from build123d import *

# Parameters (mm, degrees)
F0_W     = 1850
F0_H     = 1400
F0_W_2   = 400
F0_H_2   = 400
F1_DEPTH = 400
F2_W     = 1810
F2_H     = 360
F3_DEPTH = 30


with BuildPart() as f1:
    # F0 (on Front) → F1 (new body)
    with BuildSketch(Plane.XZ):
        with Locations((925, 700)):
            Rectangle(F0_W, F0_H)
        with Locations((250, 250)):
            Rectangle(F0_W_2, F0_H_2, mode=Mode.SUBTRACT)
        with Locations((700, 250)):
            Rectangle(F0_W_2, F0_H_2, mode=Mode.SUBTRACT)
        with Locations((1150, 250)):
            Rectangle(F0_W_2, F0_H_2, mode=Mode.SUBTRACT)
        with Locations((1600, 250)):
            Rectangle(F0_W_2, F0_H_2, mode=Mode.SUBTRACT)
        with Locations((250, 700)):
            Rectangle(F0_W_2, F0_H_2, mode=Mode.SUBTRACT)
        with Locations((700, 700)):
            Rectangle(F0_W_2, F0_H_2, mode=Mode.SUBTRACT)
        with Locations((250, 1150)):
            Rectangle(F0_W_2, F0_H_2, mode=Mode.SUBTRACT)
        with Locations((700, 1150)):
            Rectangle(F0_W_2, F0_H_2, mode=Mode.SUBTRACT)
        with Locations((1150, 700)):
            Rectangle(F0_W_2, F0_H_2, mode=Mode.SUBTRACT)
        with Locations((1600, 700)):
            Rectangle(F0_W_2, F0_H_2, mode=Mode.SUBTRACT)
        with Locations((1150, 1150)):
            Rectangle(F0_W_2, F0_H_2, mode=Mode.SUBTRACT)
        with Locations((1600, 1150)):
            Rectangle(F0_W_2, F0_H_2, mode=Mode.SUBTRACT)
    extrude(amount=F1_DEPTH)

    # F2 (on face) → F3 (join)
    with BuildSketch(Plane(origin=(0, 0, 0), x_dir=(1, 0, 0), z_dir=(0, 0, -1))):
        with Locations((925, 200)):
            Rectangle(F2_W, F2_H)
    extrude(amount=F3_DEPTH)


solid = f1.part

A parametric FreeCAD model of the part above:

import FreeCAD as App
import Part
import Sketcher

doc = App.newDocument("Part")
params = doc.addObject("Spreadsheet::Sheet", "Params")
for row, (alias, value) in enumerate([
    ("sketch1_width", "1850 mm"),
    ("sketch1_width2", "400 mm"),
    ("sketch1_height", "1400 mm"),
    ("pad1_length", "400 mm"),
    ("sketch2_width", "1810 mm"),
    ("sketch2_height", "360 mm"),
    ("pad2_length", "30 mm"),
], start=1):
    params.set(f"A{row}", alias)
    params.set(f"B{row}", "=" + value)
    params.setAlias(f"B{row}", alias)

body = doc.addObject("PartDesign::Body", "Body")

# Sketch on XZ plane
sketch1 = doc.addObject("Sketcher::SketchObject", "Sketch")
body.addObject(sketch1)
sketch1.AttachmentSupport = (doc.XZ_Plane, [""])
sketch1.MapMode = "FlatFace"
sketch1.addGeometry(Part.LineSegment(App.Vector(0, 1400, 0), App.Vector(0, 0, 0)), False)
sketch1.addGeometry(Part.LineSegment(App.Vector(0, 0, 0), App.Vector(1850, 0, 0)), False)
sketch1.addGeometry(Part.LineSegment(App.Vector(1850, 0, 0), App.Vector(1850, 1400, 0)), False)
sketch1.addGeometry(Part.LineSegment(App.Vector(1850, 1400, 0), App.Vector(0, 1400, 0)), False)
sketch1.addGeometry(Part.LineSegment(App.Vector(450, 50, 0), App.Vector(50, 50, 0)), False)
sketch1.addGeometry(Part.LineSegment(App.Vector(50, 50, 0), App.Vector(50, 450, 0)), False)
sketch1.addGeometry(Part.LineSegment(App.Vector(50, 450, 0), App.Vector(450, 450, 0)), False)
sketch1.addGeometry(Part.LineSegment(App.Vector(450, 450, 0), App.Vector(450, 50, 0)), False)
sketch1.addGeometry(Part.LineSegment(App.Vector(900, 50, 0), App.Vector(500, 50, 0)), False)
sketch1.addGeometry(Part.LineSegment(App.Vector(500, 50, 0), App.Vector(500, 450, 0)), False)
sketch1.addGeometry(Part.LineSegment(App.Vector(500, 450, 0), App.Vector(900, 450, 0)), False)
sketch1.addGeometry(Part.LineSegment(App.Vector(900, 450, 0), App.Vector(900, 50, 0)), False)
sketch1.addGeometry(Part.LineSegment(App.Vector(1350, 50, 0), App.Vector(950, 50, 0)), False)
sketch1.addGeometry(Part.LineSegment(App.Vector(950, 50, 0), App.Vector(950, 450, 0)), False)
sketch1.addGeometry(Part.LineSegment(App.Vector(950, 450, 0), App.Vector(1350, 450, 0)), False)
sketch1.addGeometry(Part.LineSegment(App.Vector(1350, 450, 0), App.Vector(1350, 50, 0)), False)
sketch1.addGeometry(Part.LineSegment(App.Vector(1800, 50, 0), App.Vector(1400, 50, 0)), False)
sketch1.addGeometry(Part.LineSegment(App.Vector(1400, 50, 0), App.Vector(1400, 450, 0)), False)
sketch1.addGeometry(Part.LineSegment(App.Vector(1400, 450, 0), App.Vector(1800, 450, 0)), False)
sketch1.addGeometry(Part.LineSegment(App.Vector(1800, 450, 0), App.Vector(1800, 50, 0)), False)
sketch1.addGeometry(Part.LineSegment(App.Vector(450, 500, 0), App.Vector(50, 500, 0)), False)
sketch1.addGeometry(Part.LineSegment(App.Vector(50, 500, 0), App.Vector(50, 900, 0)), False)
sketch1.addGeometry(Part.LineSegment(App.Vector(50, 900, 0), App.Vector(450, 900, 0)), False)
sketch1.addGeometry(Part.LineSegment(App.Vector(450, 900, 0), App.Vector(450, 500, 0)), False)
sketch1.addGeometry(Part.LineSegment(App.Vector(900, 500, 0), App.Vector(500, 500, 0)), False)
sketch1.addGeometry(Part.LineSegment(App.Vector(500, 500, 0), App.Vector(500, 900, 0)), False)
sketch1.addGeometry(Part.LineSegment(App.Vector(500, 900, 0), App.Vector(900, 900, 0)), False)
sketch1.addGeometry(Part.LineSegment(App.Vector(900, 900, 0), App.Vector(900, 500, 0)), False)
sketch1.addGeometry(Part.LineSegment(App.Vector(450, 950, 0), App.Vector(50, 950, 0)), False)
sketch1.addGeometry(Part.LineSegment(App.Vector(50, 950, 0), App.Vector(50, 1350, 0)), False)
sketch1.addGeometry(Part.LineSegment(App.Vector(50, 1350, 0), App.Vector(450, 1350, 0)), False)
sketch1.addGeometry(Part.LineSegment(App.Vector(450, 1350, 0), App.Vector(450, 950, 0)), False)
sketch1.addGeometry(Part.LineSegment(App.Vector(900, 950, 0), App.Vector(500, 950, 0)), False)
sketch1.addGeometry(Part.LineSegment(App.Vector(500, 950, 0), App.Vector(500, 1350, 0)), False)
sketch1.addGeometry(Part.LineSegment(App.Vector(500, 1350, 0), App.Vector(900, 1350, 0)), False)
sketch1.addGeometry(Part.LineSegment(App.Vector(900, 1350, 0), App.Vector(900, 950, 0)), False)
sketch1.addGeometry(Part.LineSegment(App.Vector(1350, 500, 0), App.Vector(950, 500, 0)), False)
sketch1.addGeometry(Part.LineSegment(App.Vector(950, 500, 0), App.Vector(950, 900, 0)), False)
sketch1.addGeometry(Part.LineSegment(App.Vector(950, 900, 0), App.Vector(1350, 900, 0)), False)
sketch1.addGeometry(Part.LineSegment(App.Vector(1350, 900, 0), App.Vector(1350, 500, 0)), False)
sketch1.addGeometry(Part.LineSegment(App.Vector(1800, 500, 0), App.Vector(1400, 500, 0)), False)
sketch1.addGeometry(Part.LineSegment(App.Vector(1400, 500, 0), App.Vector(1400, 900, 0)), False)
sketch1.addGeometry(Part.LineSegment(App.Vector(1400, 900, 0), App.Vector(1800, 900, 0)), False)
sketch1.addGeometry(Part.LineSegment(App.Vector(1800, 900, 0), App.Vector(1800, 500, 0)), False)
sketch1.addGeometry(Part.LineSegment(App.Vector(1350, 950, 0), App.Vector(950, 950, 0)), False)
sketch1.addGeometry(Part.LineSegment(App.Vector(950, 950, 0), App.Vector(950, 1350, 0)), False)
sketch1.addGeometry(Part.LineSegment(App.Vector(950, 1350, 0), App.Vector(1350, 1350, 0)), False)
sketch1.addGeometry(Part.LineSegment(App.Vector(1350, 1350, 0), App.Vector(1350, 950, 0)), False)
sketch1.addGeometry(Part.LineSegment(App.Vector(1800, 950, 0), App.Vector(1400, 950, 0)), False)
sketch1.addGeometry(Part.LineSegment(App.Vector(1400, 950, 0), App.Vector(1400, 1350, 0)), False)
sketch1.addGeometry(Part.LineSegment(App.Vector(1400, 1350, 0), App.Vector(1800, 1350, 0)), False)
sketch1.addGeometry(Part.LineSegment(App.Vector(1800, 1350, 0), App.Vector(1800, 950, 0)), False)
sketch1.addConstraint(Sketcher.Constraint("Coincident", 0, 2, 1, 1))
sketch1.addConstraint(Sketcher.Constraint("Coincident", 1, 2, 2, 1))
sketch1.addConstraint(Sketcher.Constraint("Coincident", 2, 2, 3, 1))
sketch1.addConstraint(Sketcher.Constraint("Coincident", 3, 2, 0, 1))
sketch1.addConstraint(Sketcher.Constraint("Coincident", 4, 2, 5, 1))
sketch1.addConstraint(Sketcher.Constraint("Coincident", 5, 2, 6, 1))
sketch1.addConstraint(Sketcher.Constraint("Coincident", 6, 2, 7, 1))
sketch1.addConstraint(Sketcher.Constraint("Coincident", 7, 2, 4, 1))
sketch1.addConstraint(Sketcher.Constraint("Coincident", 8, 2, 9, 1))
sketch1.addConstraint(Sketcher.Constraint("Coincident", 9, 2, 10, 1))
sketch1.addConstraint(Sketcher.Constraint("Coincident", 10, 2, 11, 1))
sketch1.addConstraint(Sketcher.Constraint("Coincident", 11, 2, 8, 1))
sketch1.addConstraint(Sketcher.Constraint("Coincident", 12, 2, 13, 1))
sketch1.addConstraint(Sketcher.Constraint("Coincident", 13, 2, 14, 1))
sketch1.addConstraint(Sketcher.Constraint("Coincident", 14, 2, 15, 1))
sketch1.addConstraint(Sketcher.Constraint("Coincident", 15, 2, 12, 1))
sketch1.addConstraint(Sketcher.Constraint("Coincident", 16, 2, 17, 1))
sketch1.addConstraint(Sketcher.Constraint("Coincident", 17, 2, 18, 1))
sketch1.addConstraint(Sketcher.Constraint("Coincident", 18, 2, 19, 1))
sketch1.addConstraint(Sketcher.Constraint("Coincident", 19, 2, 16, 1))
sketch1.addConstraint(Sketcher.Constraint("Coincident", 20, 2, 21, 1))
sketch1.addConstraint(Sketcher.Constraint("Coincident", 21, 2, 22, 1))
sketch1.addConstraint(Sketcher.Constraint("Coincident", 22, 2, 23, 1))
sketch1.addConstraint(Sketcher.Constraint("Coincident", 23, 2, 20, 1))
sketch1.addConstraint(Sketcher.Constraint("Coincident", 24, 2, 25, 1))
sketch1.addConstraint(Sketcher.Constraint("Coincident", 25, 2, 26, 1))
sketch1.addConstraint(Sketcher.Constraint("Coincident", 26, 2, 27, 1))
sketch1.addConstraint(Sketcher.Constraint("Coincident", 27, 2, 24, 1))
sketch1.addConstraint(Sketcher.Constraint("Coincident", 28, 2, 29, 1))
sketch1.addConstraint(Sketcher.Constraint("Coincident", 29, 2, 30, 1))
sketch1.addConstraint(Sketcher.Constraint("Coincident", 30, 2, 31, 1))
sketch1.addConstraint(Sketcher.Constraint("Coincident", 31, 2, 28, 1))
sketch1.addConstraint(Sketcher.Constraint("Coincident", 32, 2, 33, 1))
sketch1.addConstraint(Sketcher.Constraint("Coincident", 33, 2, 34, 1))
sketch1.addConstraint(Sketcher.Constraint("Coincident", 34, 2, 35, 1))
sketch1.addConstraint(Sketcher.Constraint("Coincident", 35, 2, 32, 1))
sketch1.addConstraint(Sketcher.Constraint("Coincident", 36, 2, 37, 1))
sketch1.addConstraint(Sketcher.Constraint("Coincident", 37, 2, 38, 1))
sketch1.addConstraint(Sketcher.Constraint("Coincident", 38, 2, 39, 1))
sketch1.addConstraint(Sketcher.Constraint("Coincident", 39, 2, 36, 1))
sketch1.addConstraint(Sketcher.Constraint("Coincident", 40, 2, 41, 1))
sketch1.addConstraint(Sketcher.Constraint("Coincident", 41, 2, 42, 1))
sketch1.addConstraint(Sketcher.Constraint("Coincident", 42, 2, 43, 1))
sketch1.addConstraint(Sketcher.Constraint("Coincident", 43, 2, 40, 1))
sketch1.addConstraint(Sketcher.Constraint("Coincident", 44, 2, 45, 1))
sketch1.addConstraint(Sketcher.Constraint("Coincident", 45, 2, 46, 1))
sketch1.addConstraint(Sketcher.Constraint("Coincident", 46, 2, 47, 1))
sketch1.addConstraint(Sketcher.Constraint("Coincident", 47, 2, 44, 1))
sketch1.addConstraint(Sketcher.Constraint("Coincident", 48, 2, 49, 1))
sketch1.addConstraint(Sketcher.Constraint("Coincident", 49, 2, 50, 1))
sketch1.addConstraint(Sketcher.Constraint("Coincident", 50, 2, 51, 1))
sketch1.addConstraint(Sketcher.Constraint("Coincident", 51, 2, 48, 1))
sketch1.addConstraint(Sketcher.Constraint("Vertical", 0))
sketch1.addConstraint(Sketcher.Constraint("Horizontal", 1))
sketch1.addConstraint(Sketcher.Constraint("Vertical", 2))
sketch1.addConstraint(Sketcher.Constraint("Horizontal", 3))
sketch1.addConstraint(Sketcher.Constraint("Horizontal", 4))
sketch1.addConstraint(Sketcher.Constraint("Vertical", 5))
sketch1.addConstraint(Sketcher.Constraint("Horizontal", 6))
sketch1.addConstraint(Sketcher.Constraint("Vertical", 7))
sketch1.addConstraint(Sketcher.Constraint("Horizontal", 8))
sketch1.addConstraint(Sketcher.Constraint("Vertical", 9))
sketch1.addConstraint(Sketcher.Constraint("Horizontal", 10))
sketch1.addConstraint(Sketcher.Constraint("Vertical", 11))
sketch1.addConstraint(Sketcher.Constraint("Horizontal", 12))
sketch1.addConstraint(Sketcher.Constraint("Vertical", 13))
sketch1.addConstraint(Sketcher.Constraint("Horizontal", 14))
sketch1.addConstraint(Sketcher.Constraint("Vertical", 15))
sketch1.addConstraint(Sketcher.Constraint("Horizontal", 16))
sketch1.addConstraint(Sketcher.Constraint("Vertical", 17))
sketch1.addConstraint(Sketcher.Constraint("Horizontal", 18))
sketch1.addConstraint(Sketcher.Constraint("Vertical", 19))
sketch1.addConstraint(Sketcher.Constraint("Horizontal", 20))
sketch1.addConstraint(Sketcher.Constraint("Vertical", 21))
sketch1.addConstraint(Sketcher.Constraint("Horizontal", 22))
sketch1.addConstraint(Sketcher.Constraint("Vertical", 23))
sketch1.addConstraint(Sketcher.Constraint("Horizontal", 24))
sketch1.addConstraint(Sketcher.Constraint("Vertical", 25))
sketch1.addConstraint(Sketcher.Constraint("Horizontal", 26))
sketch1.addConstraint(Sketcher.Constraint("Vertical", 27))
sketch1.addConstraint(Sketcher.Constraint("Horizontal", 28))
sketch1.addConstraint(Sketcher.Constraint("Vertical", 29))
sketch1.addConstraint(Sketcher.Constraint("Horizontal", 30))
sketch1.addConstraint(Sketcher.Constraint("Vertical", 31))
sketch1.addConstraint(Sketcher.Constraint("Horizontal", 32))
sketch1.addConstraint(Sketcher.Constraint("Vertical", 33))
sketch1.addConstraint(Sketcher.Constraint("Horizontal", 34))
sketch1.addConstraint(Sketcher.Constraint("Vertical", 35))
sketch1.addConstraint(Sketcher.Constraint("Horizontal", 36))
sketch1.addConstraint(Sketcher.Constraint("Vertical", 37))
sketch1.addConstraint(Sketcher.Constraint("Horizontal", 38))
sketch1.addConstraint(Sketcher.Constraint("Vertical", 39))
sketch1.addConstraint(Sketcher.Constraint("Horizontal", 40))
sketch1.addConstraint(Sketcher.Constraint("Vertical", 41))
sketch1.addConstraint(Sketcher.Constraint("Horizontal", 42))
sketch1.addConstraint(Sketcher.Constraint("Vertical", 43))
sketch1.addConstraint(Sketcher.Constraint("Horizontal", 44))
sketch1.addConstraint(Sketcher.Constraint("Vertical", 45))
sketch1.addConstraint(Sketcher.Constraint("Horizontal", 46))
sketch1.addConstraint(Sketcher.Constraint("Vertical", 47))
sketch1.addConstraint(Sketcher.Constraint("Horizontal", 48))
sketch1.addConstraint(Sketcher.Constraint("Vertical", 49))
sketch1.addConstraint(Sketcher.Constraint("Horizontal", 50))
sketch1.addConstraint(Sketcher.Constraint("Vertical", 51))
sketch1.addConstraint(Sketcher.Constraint("Coincident", 0, 2, -1, 1))
sketch1.addConstraint(Sketcher.Constraint("Horizontal", 7, 2, 8, 2))
sketch1.addConstraint(Sketcher.Constraint("Horizontal", 6, 2, 9, 2))
sketch1.addConstraint(Sketcher.Constraint("Horizontal", 11, 2, 12, 2))
sketch1.addConstraint(Sketcher.Constraint("Horizontal", 10, 2, 13, 2))
sketch1.addConstraint(Sketcher.Constraint("Horizontal", 15, 2, 16, 2))
sketch1.addConstraint(Sketcher.Constraint("Horizontal", 14, 2, 17, 2))
sketch1.addConstraint(Sketcher.Constraint("Horizontal", 23, 2, 24, 2))
sketch1.addConstraint(Sketcher.Constraint("Horizontal", 22, 2, 25, 2))
sketch1.addConstraint(Sketcher.Constraint("Horizontal", 31, 2, 32, 2))
sketch1.addConstraint(Sketcher.Constraint("Horizontal", 30, 2, 33, 2))
sketch1.addConstraint(Sketcher.Constraint("Horizontal", 27, 2, 36, 2))
sketch1.addConstraint(Sketcher.Constraint("Horizontal", 26, 2, 37, 2))
sketch1.addConstraint(Sketcher.Constraint("Horizontal", 39, 2, 40, 2))
sketch1.addConstraint(Sketcher.Constraint("Horizontal", 38, 2, 41, 2))
sketch1.addConstraint(Sketcher.Constraint("Horizontal", 35, 2, 44, 2))
sketch1.addConstraint(Sketcher.Constraint("Horizontal", 34, 2, 45, 2))
sketch1.addConstraint(Sketcher.Constraint("Horizontal", 47, 2, 48, 2))
sketch1.addConstraint(Sketcher.Constraint("Horizontal", 46, 2, 49, 2))
sketch1.addConstraint(Sketcher.Constraint("Vertical", 5, 2, 20, 2))
sketch1.addConstraint(Sketcher.Constraint("Vertical", 7, 2, 22, 2))
sketch1.addConstraint(Sketcher.Constraint("Vertical", 9, 2, 24, 2))
sketch1.addConstraint(Sketcher.Constraint("Vertical", 11, 2, 26, 2))
sketch1.addConstraint(Sketcher.Constraint("Vertical", 21, 2, 28, 2))
sketch1.addConstraint(Sketcher.Constraint("Vertical", 23, 2, 30, 2))
sketch1.addConstraint(Sketcher.Constraint("Vertical", 25, 2, 32, 2))
sketch1.addConstraint(Sketcher.Constraint("Vertical", 27, 2, 34, 2))
sketch1.addConstraint(Sketcher.Constraint("Vertical", 13, 2, 36, 2))
sketch1.addConstraint(Sketcher.Constraint("Vertical", 15, 2, 38, 2))
sketch1.addConstraint(Sketcher.Constraint("Vertical", 17, 2, 40, 2))
sketch1.addConstraint(Sketcher.Constraint("Vertical", 19, 2, 42, 2))
sketch1.addConstraint(Sketcher.Constraint("Vertical", 37, 2, 44, 2))
sketch1.addConstraint(Sketcher.Constraint("Vertical", 39, 2, 46, 2))
sketch1.addConstraint(Sketcher.Constraint("Vertical", 41, 2, 48, 2))
sketch1.addConstraint(Sketcher.Constraint("Vertical", 43, 2, 50, 2))
sketch1.addConstraint(Sketcher.Constraint("Equal", 6, 8))
sketch1.addConstraint(Sketcher.Constraint("Equal", 10, 12))
sketch1.addConstraint(Sketcher.Constraint("Equal", 14, 16))
sketch1.addConstraint(Sketcher.Constraint("Equal", 50, 5))
sketch1.addConstraint(Sketcher.Constraint("Equal", 19, 21))
sketch1.addConstraint(Sketcher.Constraint("Equal", 27, 29))
sketch1.addConstraint(Sketcher.Constraint("DistanceX", 1, 1, 1, 2, 1850.0))
sketch1.addConstraint(Sketcher.Constraint("DistanceX", 4, 2, 4, 1, 400.0))
sketch1.addConstraint(Sketcher.Constraint("DistanceY", 0, 2, 0, 1, 1400.0))
sketch1.addConstraint(Sketcher.Constraint("DistanceX", -1, 1, 4, 2, 50.0))
sketch1.addConstraint(Sketcher.Constraint("DistanceY", -1, 1, 4, 2, 50.0))
sketch1.addConstraint(Sketcher.Constraint("DistanceX", -1, 1, 8, 2, 500.0))
sketch1.addConstraint(Sketcher.Constraint("DistanceX", -1, 1, 12, 2, 950.0))
sketch1.addConstraint(Sketcher.Constraint("DistanceX", -1, 1, 16, 2, 1400.0))
sketch1.addConstraint(Sketcher.Constraint("DistanceY", -1, 1, 20, 2, 500.0))
sketch1.addConstraint(Sketcher.Constraint("DistanceY", -1, 1, 28, 2, 950.0))
sketch1.setExpression("Constraints[145]", "Params.sketch1_width")
sketch1.setExpression("Constraints[146]", "Params.sketch1_width2")
sketch1.setExpression("Constraints[147]", "Params.sketch1_height")
pad1 = doc.addObject("PartDesign::Pad", "Pad")
body.addObject(pad1)
pad1.Profile = sketch1
pad1.setExpression("Length", "Params.pad1_length")

# Sketch on XY plane
sketch2 = doc.addObject("Sketcher::SketchObject", "Sketch001")
body.addObject(sketch2)
sketch2.AttachmentSupport = (doc.XY_Plane, [""])
sketch2.MapMode = "FlatFace"
sketch2.addGeometry(Part.LineSegment(App.Vector(20, -380, 0), App.Vector(20, -20, 0)), False)
sketch2.addGeometry(Part.LineSegment(App.Vector(20, -20, 0), App.Vector(1830, -20, 0)), False)
sketch2.addGeometry(Part.LineSegment(App.Vector(1830, -20, 0), App.Vector(1830, -380, 0)), False)
sketch2.addGeometry(Part.LineSegment(App.Vector(1830, -380, 0), App.Vector(20, -380, 0)), False)
sketch2.addConstraint(Sketcher.Constraint("Coincident", 0, 2, 1, 1))
sketch2.addConstraint(Sketcher.Constraint("Coincident", 1, 2, 2, 1))
sketch2.addConstraint(Sketcher.Constraint("Coincident", 2, 2, 3, 1))
sketch2.addConstraint(Sketcher.Constraint("Coincident", 3, 2, 0, 1))
sketch2.addConstraint(Sketcher.Constraint("Vertical", 0))
sketch2.addConstraint(Sketcher.Constraint("Horizontal", 1))
sketch2.addConstraint(Sketcher.Constraint("Vertical", 2))
sketch2.addConstraint(Sketcher.Constraint("Horizontal", 3))
sketch2.addConstraint(Sketcher.Constraint("DistanceX", 1, 1, 1, 2, 1810.0))
sketch2.addConstraint(Sketcher.Constraint("DistanceY", 0, 1, 0, 2, 360.0))
sketch2.addConstraint(Sketcher.Constraint("DistanceX", -1, 1, 0, 2, 20.0))
sketch2.addConstraint(Sketcher.Constraint("DistanceY", 0, 2, -1, 1, 20.0))
sketch2.setExpression("Constraints[8]", "Params.sketch2_width")
sketch2.setExpression("Constraints[9]", "Params.sketch2_height")
pad2 = doc.addObject("PartDesign::Pad", "Pad001")
body.addObject(pad2)
pad2.Profile = sketch2
pad2.setExpression("Length", "Params.pad2_length")
pad2.Reversed = True

doc.recompute()
